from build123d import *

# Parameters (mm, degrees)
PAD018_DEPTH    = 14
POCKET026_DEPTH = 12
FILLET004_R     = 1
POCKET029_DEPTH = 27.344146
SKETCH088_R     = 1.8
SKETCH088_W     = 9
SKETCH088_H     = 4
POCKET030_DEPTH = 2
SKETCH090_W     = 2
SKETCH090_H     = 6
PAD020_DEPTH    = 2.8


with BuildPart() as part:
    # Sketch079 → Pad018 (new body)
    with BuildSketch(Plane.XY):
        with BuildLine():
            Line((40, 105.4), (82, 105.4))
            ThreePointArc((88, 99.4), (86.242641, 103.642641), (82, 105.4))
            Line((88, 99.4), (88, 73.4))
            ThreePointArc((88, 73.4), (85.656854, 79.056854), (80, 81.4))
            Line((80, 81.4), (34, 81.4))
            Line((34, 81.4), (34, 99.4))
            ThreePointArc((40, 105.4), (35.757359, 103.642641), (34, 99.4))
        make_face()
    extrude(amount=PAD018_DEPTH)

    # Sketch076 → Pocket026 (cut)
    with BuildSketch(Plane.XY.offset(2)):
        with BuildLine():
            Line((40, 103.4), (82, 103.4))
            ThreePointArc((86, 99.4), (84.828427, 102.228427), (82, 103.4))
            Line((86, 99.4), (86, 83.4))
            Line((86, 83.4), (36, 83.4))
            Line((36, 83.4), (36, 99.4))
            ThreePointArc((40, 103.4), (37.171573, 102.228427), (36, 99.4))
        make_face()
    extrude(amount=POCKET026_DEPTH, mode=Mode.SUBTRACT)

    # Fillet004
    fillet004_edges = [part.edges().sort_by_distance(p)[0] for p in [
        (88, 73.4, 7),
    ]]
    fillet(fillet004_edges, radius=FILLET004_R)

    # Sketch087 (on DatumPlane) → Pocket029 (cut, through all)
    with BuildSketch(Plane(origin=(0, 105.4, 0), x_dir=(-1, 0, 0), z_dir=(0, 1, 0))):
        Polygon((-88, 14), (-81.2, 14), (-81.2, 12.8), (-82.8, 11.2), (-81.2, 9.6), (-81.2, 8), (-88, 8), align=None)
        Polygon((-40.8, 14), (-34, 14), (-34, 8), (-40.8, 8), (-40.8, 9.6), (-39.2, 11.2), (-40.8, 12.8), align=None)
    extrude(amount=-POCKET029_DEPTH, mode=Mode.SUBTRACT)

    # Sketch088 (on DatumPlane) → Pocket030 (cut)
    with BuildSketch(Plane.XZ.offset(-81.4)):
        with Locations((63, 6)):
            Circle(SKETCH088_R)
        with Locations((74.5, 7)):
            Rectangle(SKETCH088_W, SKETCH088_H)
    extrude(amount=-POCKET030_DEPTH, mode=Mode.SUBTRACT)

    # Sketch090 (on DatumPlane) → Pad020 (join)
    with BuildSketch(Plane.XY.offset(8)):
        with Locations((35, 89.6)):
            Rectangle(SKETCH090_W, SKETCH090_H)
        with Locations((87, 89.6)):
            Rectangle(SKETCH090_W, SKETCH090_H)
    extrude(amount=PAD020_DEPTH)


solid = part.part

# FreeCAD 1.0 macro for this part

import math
import FreeCAD as App
import Part
import Sketcher
Q = App.Units.Quantity


def edges_at(feature, points):
    """Names of the edges that pass closest to the given points."""
    edges = feature.Shape.Edges
    near = lambda p: min(range(len(edges)), key=lambda i: edges[i].distToShape(Part.Vertex(*p))[0])
    return sorted({f"Edge{near(p) + 1}" for p in points})

doc = App.newDocument("Part")
body = doc.addObject("PartDesign::Body", "Body")

sketch1 = body.newObject("Sketcher::SketchObject", "Sketch")
sketch1.AttachmentSupport = (doc.getObject("XY_Plane"), [""])
sketch1.MapMode = "FlatFace"
sketch1.addGeometry(Part.LineSegment(App.Vector(82, 105, 0), App.Vector(40, 105, 0)), False)
sketch1.addGeometry(Part.ArcOfCircle(Part.Circle(App.Vector(40, 99, 0), App.Vector(0, 0, 1), 6), math.radians(90), math.radians(180)), False)
sketch1.addGeometry(Part.LineSegment(App.Vector(34, 99, 0), App.Vector(34, 81, 0)), False)
sketch1.addGeometry(Part.LineSegment(App.Vector(34, 81, 0), App.Vector(80, 81, 0)), False)
sketch1.addGeometry(Part.ArcOfCircle(Part.Circle(App.Vector(80, 73, 0), App.Vector(0, 0, 1), 8), math.radians(0), math.radians(90)), False)
sketch1.addGeometry(Part.LineSegment(App.Vector(88, 73, 0), App.Vector(88, 99, 0)), False)
sketch1.addGeometry(Part.ArcOfCircle(Part.Circle(App.Vector(82, 99, 0), App.Vector(0, 0, 1), 6), math.radians(0), math.radians(90)), False)
sketch1.addConstraint(Sketcher.Constraint("Tangent", 0, 2, 1, 1))
sketch1.addConstraint(Sketcher.Constraint("Tangent", 1, 2, 2, 1))
sketch1.addConstraint(Sketcher.Constraint("Coincident", 2, 2, 3, 1))
sketch1.addConstraint(Sketcher.Constraint("Tangent", 3, 2, 4, 2))
sketch1.addConstraint(Sketcher.Constraint("Tangent", 4, 1, 5, 1))
sketch1.addConstraint(Sketcher.Constraint("Tangent", 5, 2, 6, 1))
sketch1.addConstraint(Sketcher.Constraint("Tangent", 6, 2, 0, 1))
sketch1.addConstraint(Sketcher.Constraint("Horizontal", 0))
sketch1.addConstraint(Sketcher.Constraint("Vertical", 2))
sketch1.addConstraint(Sketcher.Constraint("Horizontal", 3))
sketch1.addConstraint(Sketcher.Constraint("Vertical", 5))
sketch1.addConstraint(Sketcher.Constraint("Equal", 1, 6))
sketch1.addConstraint(Sketcher.Constraint("Radius", 1, Q("5.999999 mm")))
sketch1.addConstraint(Sketcher.Constraint("Radius", 4, Q("8.000001 mm")))
sketch1.addConstraint(Sketcher.Constraint("DistanceX", 0, 2, 0, 1, Q("42 mm")))
sketch1.addConstraint(Sketcher.Constraint("DistanceY", 2, 2, 2, 1, Q("18 mm")))
sketch1.addConstraint(Sketcher.Constraint("DistanceX", -1, 1, 1, 3, Q("39.999999 mm")))
sketch1.addConstraint(Sketcher.Constraint("DistanceY", -1, 1, 1, 3, Q("99.400001 mm")))
pad1 = body.newObject("PartDesign::Pad", "Pad")
pad1.Profile = sketch1
pad1.Length = 14

sketch2 = body.newObject("Sketcher::SketchObject", "Sketch001")
sketch2.AttachmentSupport = (doc.getObject("XY_Plane"), [""])
sketch2.MapMode = "FlatFace"
sketch2.AttachmentOffset = App.Placement(App.Vector(0, 0, 2), App.Rotation())
sketch2.addGeometry(Part.LineSegment(App.Vector(82, 103.4, 0), App.Vector(40, 103.4, 0)), False)
sketch2.addGeometry(Part.ArcOfCircle(Part.Circle(App.Vector(40, 99.4, 0), App.Vector(0, 0, 1), 4), math.radians(90), math.radians(180)), False)
sketch2.addGeometry(Part.LineSegment(App.Vector(36, 99.4, 0), App.Vector(36, 83.4, 0)), False)
sketch2.addGeometry(Part.LineSegment(App.Vector(36, 83.4, 0), App.Vector(86, 83.4, 0)), False)
sketch2.addGeometry(Part.LineSegment(App.Vector(86, 83.4, 0), App.Vector(86, 99.4, 0)), False)
sketch2.addGeometry(Part.ArcOfCircle(Part.Circle(App.Vector(82, 99.4, 0), App.Vector(0, 0, 1), 4), math.radians(0), math.radians(90)), False)
sketch2.addConstraint(Sketcher.Constraint("Tangent", 0, 2, 1, 1))
sketch2.addConstraint(Sketcher.Constraint("Tangent", 1, 2, 2, 1))
sketch2.addConstraint(Sketcher.Constraint("Coincident", 2, 2, 3, 1))
sketch2.addConstraint(Sketcher.Constraint("Coincident", 3, 2, 4, 1))
sketch2.addConstraint(Sketcher.Constraint("Tangent", 4, 2, 5, 1))
sketch2.addConstraint(Sketcher.Constraint("Tangent", 5, 2, 0, 1))
sketch2.addConstraint(Sketcher.Constraint("Horizontal", 0))
sketch2.addConstraint(Sketcher.Constraint("Vertical", 2))
sketch2.addConstraint(Sketcher.Constraint("Horizontal", 3))
sketch2.addConstraint(Sketcher.Constraint("Vertical", 4))
sketch2.addConstraint(Sketcher.Constraint("Equal", 1, 5))
sketch2.addConstraint(Sketcher.Constraint("Radius", 1, Q("4 mm")))
sketch2.addConstraint(Sketcher.Constraint("DistanceX", 0, 2, 0, 1, Q("42 mm")))
sketch2.addConstraint(Sketcher.Constraint("DistanceY", 2, 2, 2, 1, Q("16 mm")))
sketch2.addConstraint(Sketcher.Constraint("DistanceX", -1, 1, 1, 3, Q("40 mm")))
sketch2.addConstraint(Sketcher.Constraint("DistanceY", -1, 1, 1, 3, Q("99.4 mm")))
pocket1 = body.newObject("PartDesign::Pocket", "Pocket")
pocket1.Profile = sketch2
pocket1.Length = 12
pocket1.Reversed = True
doc.recompute()

fillet = body.newObject("PartDesign::Fillet", "Fillet")
fillet.Base = (pocket1, edges_at(pocket1, [(88, 73.4, 7)]))
fillet.Radius = 1

sketch3 = body.newObject("Sketcher::SketchObject", "Sketch002")
sketch3.AttachmentSupport = (doc.getObject("XZ_Plane"), [""])
sketch3.MapMode = "FlatFace"
sketch3.AttachmentOffset = App.Placement(App.Vector(0, 0, -105.4), App.Rotation())
sketch3.addGeometry(Part.LineSegment(App.Vector(81.2, 14, 0), App.Vector(88, 14, 0)), False)
sketch3.addGeometry(Part.LineSegment(App.Vector(88, 14, 0), App.Vector(88, 8, 0)), False)
sketch3.addGeometry(Part.LineSegment(App.Vector(88, 8, 0), App.Vector(81.2, 8, 0)), False)
sketch3.addGeometry(Part.LineSegment(App.Vector(81.2, 8, 0), App.Vector(81.2, 9.6, 0)), False)
sketch3.addGeometry(Part.LineSegment(App.Vector(81.2, 9.6, 0), App.Vector(82.8, 11.2, 0)), False)
sketch3.addGeometry(Part.LineSegment(App.Vector(82.8, 11.2, 0), App.Vector(81.2, 12.8, 0)), False)
sketch3.addGeometry(Part.LineSegment(App.Vector(81.2, 12.8, 0), App.Vector(81.2, 14, 0)), False)
sketch3.addGeometry(Part.LineSegment(App.Vector(34, 14, 0), App.Vector(40.8, 14, 0)), False)
sketch3.addGeometry(Part.LineSegment(App.Vector(40.8, 14, 0), App.Vector(40.8, 12.8, 0)), False)
sketch3.addGeometry(Part.LineSegment(App.Vector(40.8, 12.8, 0), App.Vector(39.2, 11.2, 0)), False)
sketch3.addGeometry(Part.LineSegment(App.Vector(39.2, 11.2, 0), App.Vector(40.8, 9.6, 0)), False)
sketch3.addGeometry(Part.LineSegment(App.Vector(40.8, 9.6, 0), App.Vector(40.8, 8, 0)), False)
sketch3.addGeometry(Part.LineSegment(App.Vector(40.8, 8, 0), App.Vector(34, 8, 0)), False)
sketch3.addGeometry(Part.LineSegment(App.Vector(34, 8, 0), App.Vector(34, 14, 0)), False)
sketch3.addConstraint(Sketcher.Constraint("Coincident", 0, 2, 1, 1))
sketch3.addConstraint(Sketcher.Constraint("Coincident", 1, 2, 2, 1))
sketch3.addConstraint(Sketcher.Constraint("Coincident", 2, 2, 3, 1))
sketch3.addConstraint(Sketcher.Constraint("Coincident", 3, 2, 4, 1))
sketch3.addConstraint(Sketcher.Constraint("Coincident", 4, 2, 5, 1))
sketch3.addConstraint(Sketcher.Constraint("Coincident", 5, 2, 6, 1))
sketch3.addConstraint(Sketcher.Constraint("Coincident", 6, 2, 0, 1))
sketch3.addConstraint(Sketcher.Constraint("Coincident", 7, 2, 8, 1))
sketch3.addConstraint(Sketcher.Constraint("Coincident", 8, 2, 9, 1))
sketch3.addConstraint(Sketcher.Constraint("Coincident", 9, 2, 10, 1))
sketch3.addConstraint(Sketcher.Constraint("Coincident", 10, 2, 11, 1))
sketch3.addConstraint(Sketcher.Constraint("Coincident", 11, 2, 12, 1))
sketch3.addConstraint(Sketcher.Constraint("Coincident", 12, 2, 13, 1))
sketch3.addConstraint(Sketcher.Constraint("Coincident", 13, 2, 7, 1))
sketch3.addConstraint(Sketcher.Constraint("Horizontal", 0))
sketch3.addConstraint(Sketcher.Constraint("Vertical", 1))
sketch3.addConstraint(Sketcher.Constraint("Horizontal", 2))
sketch3.addConstraint(Sketcher.Constraint("Vertical", 3))
sketch3.addConstraint(Sketcher.Constraint("Vertical", 6))
sketch3.addConstraint(Sketcher.Constraint("Horizontal", 7))
sketch3.addConstraint(Sketcher.Constraint("Vertical", 8))
sketch3.addConstraint(Sketcher.Constraint("Vertical", 11))
sketch3.addConstraint(Sketcher.Constraint("Horizontal", 12))
sketch3.addConstraint(Sketcher.Constraint("Vertical", 13))
sketch3.addConstraint(Sketcher.Constraint("Perpendicular", 4, 5))
sketch3.addConstraint(Sketcher.Constraint("Perpendicular", 5, 9))
sketch3.addConstraint(Sketcher.Constraint("Perpendicular", 9, 10))
sketch3.addConstraint(Sketcher.Constraint("Horizontal", 6, 2, 7, 2))
sketch3.addConstraint(Sketcher.Constraint("Horizontal", 5, 2, 8, 2))
sketch3.addConstraint(Sketcher.Constraint("Horizontal", 4, 2, 9, 2))
sketch3.addConstraint(Sketcher.Constraint("Horizontal", 3, 2, 10, 2))
sketch3.addConstraint(Sketcher.Constraint("Horizontal", 2, 2, 11, 2))
sketch3.addConstraint(Sketcher.Constraint("Vertical", 3, 2, 5, 2))
sketch3.addConstraint(Sketcher.Constraint("Vertical", 8, 2, 10, 2))
sketch3.addConstraint(Sketcher.Constraint("Equal", 2, 7))
sketch3.addConstraint(Sketcher.Constraint("DistanceY", 1, 2, 1, 1, Q("6 mm")))
sketch3.addConstraint(Sketcher.Constraint("DistanceX", 0, 1, 0, 2, Q("6.8 mm")))
sketch3.addConstraint(Sketcher.Constraint("DistanceY", 3, 1, 3, 2, Q("1.6 mm")))
sketch3.addConstraint(Sketcher.Constraint("DistanceY", 6, 1, 6, 2, Q("1.2 mm")))
sketch3.addConstraint(Sketcher.Constraint("DistanceX", -1, 1, 0, 2, Q("88 mm")))
sketch3.addConstraint(Sketcher.Constraint("DistanceY", -1, 1, 0, 2, Q("14 mm")))
sketch3.addConstraint(Sketcher.Constraint("DistanceX", -1, 1, 12, 2, Q("34 mm")))
pocket2 = body.newObject("PartDesign::Pocket", "Pocket001")
pocket2.Profile = sketch3
pocket2.Type = "ThroughAll"
pocket2.Reversed = True

sketch4 = body.newObject("Sketcher::SketchObject", "Sketch003")
sketch4.AttachmentSupport = (doc.getObject("XZ_Plane"), [""])
sketch4.MapMode = "FlatFace"
sketch4.AttachmentOffset = App.Placement(App.Vector(0, 0, -81.4), App.Rotation())
sketch4.addGeometry(Part.Circle(App.Vector(63, 6, 0), App.Vector(0, 0, 1), 1.8), False)
sketch4.addGeometry(Part.LineSegment(App.Vector(70, 9, 0), App.Vector(70, 5, 0)), False)
sketch4.addGeometry(Part.LineSegment(App.Vector(70, 5, 0), App.Vector(79, 5, 0)), False)
sketch4.addGeometry(Part.LineSegment(App.Vector(79, 5, 0), App.Vector(79, 9, 0)), False)
sketch4.addGeometry(Part.LineSegment(App.Vector(79, 9, 0), App.Vector(70, 9, 0)), False)
sketch4.addConstraint(Sketcher.Constraint("Coincident", 1, 2, 2, 1))
sketch4.addConstraint(Sketcher.Constraint("Coincident", 2, 2, 3, 1))
sketch4.addConstraint(Sketcher.Constraint("Coincident", 3, 2, 4, 1))
sketch4.addConstraint(Sketcher.Constraint("Coincident", 4, 2, 1, 1))
sketch4.addConstraint(Sketcher.Constraint("Vertical", 1))
sketch4.addConstraint(Sketcher.Constraint("Horizontal", 2))
sketch4.addConstraint(Sketcher.Constraint("Vertical", 3))
sketch4.addConstraint(Sketcher.Constraint("Horizontal", 4))
sketch4.addConstraint(Sketcher.Constraint("Diameter", 0, Q("3.6 mm")))
sketch4.addConstraint(Sketcher.Constraint("DistanceX", 2, 1, 2, 2, Q("9 mm")))
sketch4.addConstraint(Sketcher.Constraint("DistanceY", 1, 2, 1, 1, Q("4 mm")))
sketch4.addConstraint(Sketcher.Constraint("DistanceX", -1, 1, 0, 3, Q("63 mm")))
sketch4.addConstraint(Sketcher.Constraint("DistanceY", -1, 1, 0, 3, Q("6 mm")))
sketch4.addConstraint(Sketcher.Constraint("DistanceX", -1, 1, 1, 2, Q("70 mm")))
sketch4.addConstraint(Sketcher.Constraint("DistanceY", -1, 1, 1, 2, Q("5 mm")))
pocket3 = body.newObject("PartDesign::Pocket", "Pocket002")
pocket3.Profile = sketch4
pocket3.Length = 2

sketch5 = body.newObject("Sketcher::SketchObject", "Sketch004")
sketch5.AttachmentSupport = (doc.getObject("XY_Plane"), [""])
sketch5.MapMode = "FlatFace"
sketch5.AttachmentOffset = App.Placement(App.Vector(0, 0, 8), App.Rotation())
sketch5.addGeometry(Part.LineSegment(App.Vector(34, 92.6, 0), App.Vector(34, 86.6, 0)), False)
sketch5.addGeometry(Part.LineSegment(App.Vector(34, 86.6, 0), App.Vector(36, 86.6, 0)), False)
sketch5.addGeometry(Part.LineSegment(App.Vector(36, 86.6, 0), App.Vector(36, 92.6, 0)), False)
sketch5.addGeometry(Part.LineSegment(App.Vector(36, 92.6, 0), App.Vector(34, 92.6, 0)), False)
sketch5.addGeometry(Part.LineSegment(App.Vector(86, 92.6, 0), App.Vector(86, 86.6, 0)), False)
sketch5.addGeometry(Part.LineSegment(App.Vector(86, 86.6, 0), App.Vector(88, 86.6, 0)), False)
sketch5.addGeometry(Part.LineSegment(App.Vector(88, 86.6, 0), App.Vector(88, 92.6, 0)), False)
sketch5.addGeometry(Part.LineSegment(App.Vector(88, 92.6, 0), App.Vector(86, 92.6, 0)), False)
sketch5.addConstraint(Sketcher.Constraint("Coincident", 0, 2, 1, 1))
sketch5.addConstraint(Sketcher.Constraint("Coincident", 1, 2, 2, 1))
sketch5.addConstraint(Sketcher.Constraint("Coincident", 2, 2, 3, 1))
sketch5.addConstraint(Sketcher.Constraint("Coincident", 3, 2, 0, 1))
sketch5.addConstraint(Sketcher.Constraint("Coincident", 4, 2, 5, 1))
sketch5.addConstraint(Sketcher.Constraint("Coincident", 5, 2, 6, 1))
sketch5.addConstraint(Sketcher.Constraint("Coincident", 6, 2, 7, 1))
sketch5.addConstraint(Sketcher.Constraint("Coincident", 7, 2, 4, 1))
sketch5.addConstraint(Sketcher.Constraint("Vertical", 0))
sketch5.addConstraint(Sketcher.Constraint("Horizontal", 1))
sketch5.addConstraint(Sketcher.Constraint("Vertical", 2))
sketch5.addConstraint(Sketcher.Constraint("Horizontal", 3))
sketch5.addConstraint(Sketcher.Constraint("Vertical", 4))
sketch5.addConstraint(Sketcher.Constraint("Horizontal", 5))
sketch5.addConstraint(Sketcher.Constraint("Vertical", 6))
sketch5.addConstraint(Sketcher.Constraint("Horizontal", 7))
sketch5.addConstraint(Sketcher.Constraint("Horizontal", 1, 2, 4, 2))
sketch5.addConstraint(Sketcher.Constraint("Horizontal", 3, 2, 6, 2))
sketch5.addConstraint(Sketcher.Constraint("Equal", 3, 5))
sketch5.addConstraint(Sketcher.Constraint("DistanceX", 1, 1, 1, 2, Q("2 mm")))
sketch5.addConstraint(Sketcher.Constraint("DistanceY", 0, 2, 0, 1, Q("6 mm")))
sketch5.addConstraint(Sketcher.Constraint("DistanceX", -1, 1, 0, 2, Q("34 mm")))
sketch5.addConstraint(Sketcher.Constraint("DistanceX", -1, 1, 4, 2, Q("86 mm")))
sketch5.addConstraint(Sketcher.Constraint("DistanceY", -1, 1, 0, 2, Q("86.6 mm")))
pad2 = body.newObject("PartDesign::Pad", "Pad001")
pad2.Profile = sketch5
pad2.Length = 2.8

doc.recompute()
